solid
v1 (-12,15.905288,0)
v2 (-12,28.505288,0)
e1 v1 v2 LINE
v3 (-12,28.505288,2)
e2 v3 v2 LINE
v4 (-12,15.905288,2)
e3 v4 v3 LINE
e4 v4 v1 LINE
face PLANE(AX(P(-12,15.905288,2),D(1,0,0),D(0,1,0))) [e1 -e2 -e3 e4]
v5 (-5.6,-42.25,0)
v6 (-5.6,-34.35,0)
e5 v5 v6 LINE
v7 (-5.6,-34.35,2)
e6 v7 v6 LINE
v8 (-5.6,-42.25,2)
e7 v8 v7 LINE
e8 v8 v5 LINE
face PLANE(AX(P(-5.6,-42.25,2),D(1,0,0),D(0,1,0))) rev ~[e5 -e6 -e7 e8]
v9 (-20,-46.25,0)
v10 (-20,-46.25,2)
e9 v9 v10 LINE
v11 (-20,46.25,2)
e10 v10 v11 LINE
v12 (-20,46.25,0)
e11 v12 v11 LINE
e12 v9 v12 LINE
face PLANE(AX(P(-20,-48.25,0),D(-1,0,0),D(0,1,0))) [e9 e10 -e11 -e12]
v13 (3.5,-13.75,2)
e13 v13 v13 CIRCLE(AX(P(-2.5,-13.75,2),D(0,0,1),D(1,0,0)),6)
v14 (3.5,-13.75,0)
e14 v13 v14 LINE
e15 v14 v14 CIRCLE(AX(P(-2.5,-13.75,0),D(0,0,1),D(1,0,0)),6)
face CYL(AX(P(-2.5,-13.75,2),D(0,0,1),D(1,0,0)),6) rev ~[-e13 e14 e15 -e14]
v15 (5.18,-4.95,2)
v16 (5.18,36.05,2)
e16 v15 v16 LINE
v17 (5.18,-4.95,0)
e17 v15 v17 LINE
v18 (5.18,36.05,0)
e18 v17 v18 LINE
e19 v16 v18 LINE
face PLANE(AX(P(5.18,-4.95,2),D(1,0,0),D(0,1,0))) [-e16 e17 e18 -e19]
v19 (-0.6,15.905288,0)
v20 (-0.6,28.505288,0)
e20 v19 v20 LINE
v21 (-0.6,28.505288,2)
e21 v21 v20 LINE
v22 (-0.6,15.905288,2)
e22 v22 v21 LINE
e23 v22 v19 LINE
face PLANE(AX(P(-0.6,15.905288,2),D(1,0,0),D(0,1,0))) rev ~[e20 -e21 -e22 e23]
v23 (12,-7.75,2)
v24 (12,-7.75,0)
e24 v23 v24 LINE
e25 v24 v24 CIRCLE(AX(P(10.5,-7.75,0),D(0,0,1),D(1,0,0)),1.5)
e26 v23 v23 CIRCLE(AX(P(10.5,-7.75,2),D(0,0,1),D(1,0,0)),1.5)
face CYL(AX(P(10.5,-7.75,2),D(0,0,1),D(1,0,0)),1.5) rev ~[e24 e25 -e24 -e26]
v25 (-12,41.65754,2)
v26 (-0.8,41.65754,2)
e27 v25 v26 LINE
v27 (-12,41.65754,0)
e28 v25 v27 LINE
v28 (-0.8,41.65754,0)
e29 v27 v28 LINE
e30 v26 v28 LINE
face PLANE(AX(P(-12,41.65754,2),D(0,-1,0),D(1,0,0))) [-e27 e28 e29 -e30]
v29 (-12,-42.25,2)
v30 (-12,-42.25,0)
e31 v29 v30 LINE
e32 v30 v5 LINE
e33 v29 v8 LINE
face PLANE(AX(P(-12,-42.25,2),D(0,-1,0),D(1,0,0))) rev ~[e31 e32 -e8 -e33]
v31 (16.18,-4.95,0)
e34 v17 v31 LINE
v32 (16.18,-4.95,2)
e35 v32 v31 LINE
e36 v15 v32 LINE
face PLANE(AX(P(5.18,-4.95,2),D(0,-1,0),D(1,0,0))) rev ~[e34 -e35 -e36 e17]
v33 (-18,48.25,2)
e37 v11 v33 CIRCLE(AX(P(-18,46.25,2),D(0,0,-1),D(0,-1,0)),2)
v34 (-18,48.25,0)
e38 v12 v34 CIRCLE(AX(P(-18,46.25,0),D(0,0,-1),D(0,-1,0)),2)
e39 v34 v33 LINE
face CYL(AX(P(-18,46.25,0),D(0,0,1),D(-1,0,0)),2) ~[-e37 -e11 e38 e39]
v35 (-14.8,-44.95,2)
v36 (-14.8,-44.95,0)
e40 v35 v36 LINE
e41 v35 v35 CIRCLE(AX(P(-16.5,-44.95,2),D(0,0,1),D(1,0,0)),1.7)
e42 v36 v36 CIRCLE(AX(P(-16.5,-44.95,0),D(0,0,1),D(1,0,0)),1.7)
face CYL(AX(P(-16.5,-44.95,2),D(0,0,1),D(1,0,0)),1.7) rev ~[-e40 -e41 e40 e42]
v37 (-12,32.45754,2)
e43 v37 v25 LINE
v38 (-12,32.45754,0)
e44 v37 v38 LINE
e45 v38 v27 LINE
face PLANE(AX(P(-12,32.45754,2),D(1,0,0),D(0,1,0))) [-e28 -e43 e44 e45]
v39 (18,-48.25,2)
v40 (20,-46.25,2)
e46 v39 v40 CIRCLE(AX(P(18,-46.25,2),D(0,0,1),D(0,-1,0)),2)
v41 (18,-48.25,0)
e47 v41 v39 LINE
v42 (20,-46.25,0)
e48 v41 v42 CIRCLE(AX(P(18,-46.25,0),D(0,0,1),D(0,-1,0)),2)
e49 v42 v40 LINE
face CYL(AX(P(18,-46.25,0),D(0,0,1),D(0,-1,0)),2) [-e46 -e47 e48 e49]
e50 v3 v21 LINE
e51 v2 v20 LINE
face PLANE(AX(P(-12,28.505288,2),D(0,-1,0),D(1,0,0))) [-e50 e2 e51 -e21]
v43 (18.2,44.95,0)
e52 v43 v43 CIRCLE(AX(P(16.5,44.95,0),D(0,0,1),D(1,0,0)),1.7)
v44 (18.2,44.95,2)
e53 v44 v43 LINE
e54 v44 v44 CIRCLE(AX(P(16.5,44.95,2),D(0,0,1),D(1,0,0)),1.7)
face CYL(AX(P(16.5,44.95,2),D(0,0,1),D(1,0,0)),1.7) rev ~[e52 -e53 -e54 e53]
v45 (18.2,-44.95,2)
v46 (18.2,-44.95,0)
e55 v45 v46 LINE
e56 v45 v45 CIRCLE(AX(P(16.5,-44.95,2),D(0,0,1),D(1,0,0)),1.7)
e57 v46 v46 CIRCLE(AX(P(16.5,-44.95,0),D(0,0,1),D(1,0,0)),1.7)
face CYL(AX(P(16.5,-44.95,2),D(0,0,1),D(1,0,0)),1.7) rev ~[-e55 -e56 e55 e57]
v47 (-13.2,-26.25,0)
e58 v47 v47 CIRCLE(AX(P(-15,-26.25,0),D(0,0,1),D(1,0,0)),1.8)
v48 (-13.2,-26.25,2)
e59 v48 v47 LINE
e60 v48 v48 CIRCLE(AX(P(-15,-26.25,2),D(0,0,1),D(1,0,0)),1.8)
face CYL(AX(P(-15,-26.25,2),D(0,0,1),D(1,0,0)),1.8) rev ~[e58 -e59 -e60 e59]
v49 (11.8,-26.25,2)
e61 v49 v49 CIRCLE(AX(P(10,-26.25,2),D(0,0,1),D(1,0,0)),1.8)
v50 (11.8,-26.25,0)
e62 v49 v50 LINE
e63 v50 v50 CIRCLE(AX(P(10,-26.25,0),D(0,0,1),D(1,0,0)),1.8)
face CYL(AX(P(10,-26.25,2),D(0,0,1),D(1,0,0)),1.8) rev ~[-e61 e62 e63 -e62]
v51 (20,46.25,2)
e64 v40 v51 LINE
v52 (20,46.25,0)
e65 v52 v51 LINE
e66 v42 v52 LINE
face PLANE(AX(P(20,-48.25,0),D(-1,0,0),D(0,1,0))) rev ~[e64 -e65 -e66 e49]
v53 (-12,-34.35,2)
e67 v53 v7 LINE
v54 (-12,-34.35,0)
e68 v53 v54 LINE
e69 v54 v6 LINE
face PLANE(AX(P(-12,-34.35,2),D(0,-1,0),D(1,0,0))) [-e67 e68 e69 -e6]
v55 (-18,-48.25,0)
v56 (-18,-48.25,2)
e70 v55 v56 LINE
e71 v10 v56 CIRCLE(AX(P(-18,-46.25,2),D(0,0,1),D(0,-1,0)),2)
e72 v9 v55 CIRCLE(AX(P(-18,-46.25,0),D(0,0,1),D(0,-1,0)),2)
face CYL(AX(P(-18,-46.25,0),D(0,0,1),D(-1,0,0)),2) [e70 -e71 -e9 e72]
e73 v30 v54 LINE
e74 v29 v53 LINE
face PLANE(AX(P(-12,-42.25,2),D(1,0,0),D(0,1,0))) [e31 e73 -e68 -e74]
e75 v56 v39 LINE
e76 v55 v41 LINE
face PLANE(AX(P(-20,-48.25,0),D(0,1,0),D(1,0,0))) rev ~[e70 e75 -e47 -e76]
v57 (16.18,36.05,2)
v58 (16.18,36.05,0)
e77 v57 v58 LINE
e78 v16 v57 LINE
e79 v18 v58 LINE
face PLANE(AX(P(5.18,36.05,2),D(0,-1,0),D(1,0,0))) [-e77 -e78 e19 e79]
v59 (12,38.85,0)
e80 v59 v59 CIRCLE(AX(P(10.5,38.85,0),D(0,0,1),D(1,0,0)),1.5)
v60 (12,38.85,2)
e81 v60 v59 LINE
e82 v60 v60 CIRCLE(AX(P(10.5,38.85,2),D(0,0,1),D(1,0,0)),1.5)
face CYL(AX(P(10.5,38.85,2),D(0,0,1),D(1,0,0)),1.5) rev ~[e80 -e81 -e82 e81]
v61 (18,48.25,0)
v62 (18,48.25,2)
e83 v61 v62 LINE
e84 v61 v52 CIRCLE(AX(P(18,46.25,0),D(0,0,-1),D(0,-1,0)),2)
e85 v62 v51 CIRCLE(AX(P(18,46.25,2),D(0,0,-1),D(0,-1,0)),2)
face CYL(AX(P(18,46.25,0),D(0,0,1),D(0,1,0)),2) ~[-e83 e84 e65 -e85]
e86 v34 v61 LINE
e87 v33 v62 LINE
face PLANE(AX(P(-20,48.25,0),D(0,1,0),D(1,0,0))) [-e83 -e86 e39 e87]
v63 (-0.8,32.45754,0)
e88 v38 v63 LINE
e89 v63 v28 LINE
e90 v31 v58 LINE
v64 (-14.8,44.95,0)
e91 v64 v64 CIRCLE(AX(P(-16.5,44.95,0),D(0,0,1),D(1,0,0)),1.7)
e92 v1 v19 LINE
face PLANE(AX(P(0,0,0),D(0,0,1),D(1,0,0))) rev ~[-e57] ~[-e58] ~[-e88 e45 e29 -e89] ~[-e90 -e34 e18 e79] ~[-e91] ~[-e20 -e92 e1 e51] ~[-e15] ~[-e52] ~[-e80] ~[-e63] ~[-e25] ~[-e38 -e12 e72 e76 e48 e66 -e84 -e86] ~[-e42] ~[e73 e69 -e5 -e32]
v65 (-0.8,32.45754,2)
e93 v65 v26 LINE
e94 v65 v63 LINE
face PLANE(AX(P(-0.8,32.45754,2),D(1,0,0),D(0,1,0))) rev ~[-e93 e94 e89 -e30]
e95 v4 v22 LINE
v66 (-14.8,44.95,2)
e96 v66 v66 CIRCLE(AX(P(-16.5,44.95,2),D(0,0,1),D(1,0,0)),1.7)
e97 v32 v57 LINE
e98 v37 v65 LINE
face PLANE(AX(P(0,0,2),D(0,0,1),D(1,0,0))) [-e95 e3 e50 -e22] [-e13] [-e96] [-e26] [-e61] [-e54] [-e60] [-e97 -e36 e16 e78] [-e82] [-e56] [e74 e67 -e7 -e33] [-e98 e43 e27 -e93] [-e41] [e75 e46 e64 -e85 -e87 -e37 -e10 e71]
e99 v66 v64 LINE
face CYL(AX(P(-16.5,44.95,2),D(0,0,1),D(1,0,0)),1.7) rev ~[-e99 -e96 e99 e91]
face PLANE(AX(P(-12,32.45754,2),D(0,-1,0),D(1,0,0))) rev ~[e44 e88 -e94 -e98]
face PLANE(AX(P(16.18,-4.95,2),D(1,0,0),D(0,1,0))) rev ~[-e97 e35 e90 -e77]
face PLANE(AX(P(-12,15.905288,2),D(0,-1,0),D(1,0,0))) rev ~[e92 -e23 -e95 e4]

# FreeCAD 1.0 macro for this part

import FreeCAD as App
import Part
import Sketcher

V = App.Vector


def edges_at(feature, points):
    """Names of the edges that pass closest to the given points."""
    edges = feature.Shape.Edges
    near = lambda p: min(range(len(edges)), key=lambda i: edges[i].distToShape(Part.Vertex(*p))[0])
    return sorted({f"Edge{near(p) + 1}" for p in points})


def add_polygon(sketch, points):
    """Adds a closed chain of lines whose ends are joined by coincident constraints."""
    first, n = sketch.GeometryCount, len(points)
    for a, b in zip(points, points[1:] + points[:1]):
        sketch.addGeometry(Part.LineSegment(App.Vector(*a, 0), App.Vector(*b, 0)), False)
    for i in range(n):
        sketch.addConstraint(Sketcher.Constraint("Coincident", first + i, 2, first + (i + 1) % n, 1))

doc = App.newDocument("Part")
body = doc.addObject("PartDesign::Body", "Body")

sketch1 = body.newObject("Sketcher::SketchObject", "Sketch")
sketch1.AttachmentSupport = (doc.getObject("XY_Plane"), [""])
sketch1.MapMode = "FlatFace"
add_polygon(sketch1, [(-20, 48), (-20, -48), (20, -48), (20, 48)])
sketch1.addConstraint(Sketcher.Constraint("Vertical", 0))
sketch1.addConstraint(Sketcher.Constraint("Horizontal", 1))
sketch1.addConstraint(Sketcher.Constraint("Vertical", 2))
sketch1.addConstraint(Sketcher.Constraint("Horizontal", 3))
sketch1.addConstraint(Sketcher.Constraint("Symmetric", 0, 2, 2, 2, -1, 1))
sketch1.addConstraint(Sketcher.Constraint("DistanceX", 1, 1, 1, 2, 40.0))
sketch1.addConstraint(Sketcher.Constraint("DistanceY", 0, 2, 0, 1, 96.5))
pad1 = body.newObject("PartDesign::Pad", "Pad")
pad1.Profile = sketch1
pad1.Length = 2

sketch2 = body.newObject("Sketcher::SketchObject", "Sketch001")
sketch2.AttachmentSupport = (doc.getObject("XY_Plane"), [""])
sketch2.MapMode = "FlatFace"
sketch2.AttachmentOffset = App.Placement(V(0, 0, 2), App.Rotation())
sketch2.addGeometry(Part.Circle(V(-16.5, 45, 0), V(0, 0, 1), 1.7), False)
sketch2.addGeometry(Part.Circle(V(16.5, 45, 0), V(0, 0, 1), 1.7), False)
sketch2.addGeometry(Part.Circle(V(-16.5, -45, 0), V(0, 0, 1), 1.7), False)
sketch2.addGeometry(Part.Circle(V(16.5, -45, 0), V(0, 0, 1), 1.7), False)
sketch2.addGeometry(Part.Circle(V(10.5, 38.9, 0), V(0, 0, 1), 1.5), False)
sketch2.addGeometry(Part.Circle(V(10.5, -7.8, 0), V(0, 0, 1), 1.5), False)
sketch2.addGeometry(Part.Circle(V(-2.5, -13.8, 0), V(0, 0, 1), 6), False)
sketch2.addGeometry(Part.Circle(V(-15, -26.2, 0), V(0, 0, 1), 1.8), False)
sketch2.addGeometry(Part.Circle(V(10, -26.2, 0), V(0, 0, 1), 1.8), False)
add_polygon(sketch2, [(5.2, 36), (5.2, -5), (16.2, -5), (16.2, 36)])
add_polygon(sketch2, [(-12, 41.7), (-12, 32.5), (-0.8, 32.5), (-0.8, 41.7)])
add_polygon(sketch2, [(-12, 28.5), (-12, 15.9), (-0.6, 15.9), (-0.6, 28.5)])
add_polygon(sketch2, [(-12, -34.4), (-12, -42.2), (-5.6, -42.2), (-5.6, -34.4)])
sketch2.addConstraint(Sketcher.Constraint("Vertical", 9))
sketch2.addConstraint(Sketcher.Constraint("Horizontal", 10))
sketch2.addConstraint(Sketcher.Constraint("Vertical", 11))
sketch2.addConstraint(Sketcher.Constraint("Horizontal", 12))
sketch2.addConstraint(Sketcher.Constraint("Vertical", 13))
sketch2.addConstraint(Sketcher.Constraint("Horizontal", 14))
sketch2.addConstraint(Sketcher.Constraint("Vertical", 15))
sketch2.addConstraint(Sketcher.Constraint("Horizontal", 16))
sketch2.addConstraint(Sketcher.Constraint("Vertical", 17))
sketch2.addConstraint(Sketcher.Constraint("Horizontal", 18))
sketch2.addConstraint(Sketcher.Constraint("Vertical", 19))
sketch2.addConstraint(Sketcher.Constraint("Horizontal", 20))
sketch2.addConstraint(Sketcher.Constraint("Vertical", 21))
sketch2.addConstraint(Sketcher.Constraint("Horizontal", 22))
sketch2.addConstraint(Sketcher.Constraint("Vertical", 23))
sketch2.addConstraint(Sketcher.Constraint("Horizontal", 24))
sketch2.addConstraint(Sketcher.Constraint("Equal", 0, 1))
sketch2.addConstraint(Sketcher.Constraint("Equal", 1, 2))
sketch2.addConstraint(Sketcher.Constraint("Equal", 2, 3))
sketch2.addConstraint(Sketcher.Constraint("Equal", 4, 5))
sketch2.addConstraint(Sketcher.Constraint("Equal", 7, 8))
sketch2.addConstraint(Sketcher.Constraint("Symmetric", 1, 3, 2, 3, -1, 1))
sketch2.addConstraint(Sketcher.Constraint("Symmetric", 0, 3, 3, 3, -1, 1))
sketch2.addConstraint(Sketcher.Constraint("Symmetric", 0, 3, 1, 3, -2))
sketch2.addConstraint(Sketcher.Constraint("Horizontal", 7, 3, 8, 3))
sketch2.addConstraint(Sketcher.Constraint("Vertical", 4, 3, 5, 3))
sketch2.addConstraint(Sketcher.Constraint("Vertical", 16, 2, 17, 2))
sketch2.addConstraint(Sketcher.Constraint("Vertical", 20, 2, 21, 2))
sketch2.addConstraint(Sketcher.Constraint("Diameter", 4, 3.0))
sketch2.addConstraint(Sketcher.Constraint("Diameter", 6, 12.0))
sketch2.addConstraint(Sketcher.Constraint("Diameter", 0, 3.4))
sketch2.addConstraint(Sketcher.Constraint("Diameter", 7, 3.6))
sketch2.addConstraint(Sketcher.Constraint("DistanceX", 10, 1, 10, 2, 11.0))
sketch2.addConstraint(Sketcher.Constraint("DistanceY", 9, 2, 9, 1, 41.0))
sketch2.addConstraint(Sketcher.Constraint("DistanceX", 14, 1, 14, 2, 11.2))
sketch2.addConstraint(Sketcher.Constraint("DistanceX", 18, 1, 18, 2, 11.4))
sketch2.addConstraint(Sketcher.Constraint("DistanceX", 22, 1, 22, 2, 6.4))
sketch2.addConstraint(Sketcher.Constraint("DistanceY", 13, 2, 13, 1, 9.2))
sketch2.addConstraint(Sketcher.Constraint("DistanceY", 17, 2, 17, 1, 12.6))
sketch2.addConstraint(Sketcher.Constraint("DistanceY", 21, 2, 21, 1, 7.9))
sketch2.addConstraint(Sketcher.Constraint("DistanceX", 7, 3, -1, 1, 15.0))
sketch2.addConstraint(Sketcher.Constraint("DistanceX", -1, 1, 8, 3, 10.0))
sketch2.addConstraint(Sketcher.Constraint("DistanceX", 13, 2, -1, 1, 12.0))
sketch2.addConstraint(Sketcher.Constraint("DistanceX", 0, 3, 1, 3, 33.0))
sketch2.addConstraint(Sketcher.Constraint("DistanceX", 4, 3, 1, 3, 6.0))
sketch2.addConstraint(Sketcher.Constraint("DistanceX", 6, 3, 5, 3, 13.0))
sketch2.addConstraint(Sketcher.Constraint("DistanceY", 6, 3, 5, 3, 6.0))
sketch2.addConstraint(Sketcher.Constraint("DistanceY", 3, 3, 9, 2, 40.0))
sketch2.addConstraint(Sketcher.Constraint("DistanceY", 21, 2, 7, 3, 16.0))
sketch2.addConstraint(Sketcher.Constraint("DistanceY", 2, 3, 0, 3, 89.9))
sketch2.addConstraint(Sketcher.Constraint("DistanceY", 4, 3, 1, 3, 6.1))
sketch2.addConstraint(Sketcher.Constraint("DistanceY", 3, 3, 5, 3, 37.2))
sketch2.addConstraint(Sketcher.Constraint("DistanceY", 7, 3, 6, 3, 12.5))
sketch2.addConstraint(Sketcher.Constraint("DistanceX", -1, 1, 9, 2, 5.18))
sketch2.addConstraint(Sketcher.Constraint("DistanceY", -1, 1, 13, 2, 32.45754))
sketch2.addConstraint(Sketcher.Constraint("DistanceY", -1, 1, 19, 2, 28.505288))
pocket1 = body.newObject("PartDesign::Pocket", "Pocket")
pocket1.Profile = sketch2
pocket1.Length = 5
doc.recompute()

fillet = body.newObject("PartDesign::Fillet", "Fillet")
fillet.Base = (pocket1, edges_at(pocket1, [(-20, 48.25, 1)]))
fillet.Radius = 2
doc.recompute()

fillet2 = body.newObject("PartDesign::Fillet", "Fillet001")
fillet2.Base = (fillet, edges_at(fillet, [(20, 48.25, 1)]))
fillet2.Radius = 2
doc.recompute()

fillet3 = body.newObject("PartDesign::Fillet", "Fillet002")
fillet3.Base = (fillet2, edges_at(fillet2, [(-20, -48.25, 1)]))
fillet3.Radius = 2
doc.recompute()

fillet4 = body.newObject("PartDesign::Fillet", "Fillet003")
fillet4.Base = (fillet3, edges_at(fillet3, [(20, -48.25, 1)]))
fillet4.Radius = 2

doc.recompute()
